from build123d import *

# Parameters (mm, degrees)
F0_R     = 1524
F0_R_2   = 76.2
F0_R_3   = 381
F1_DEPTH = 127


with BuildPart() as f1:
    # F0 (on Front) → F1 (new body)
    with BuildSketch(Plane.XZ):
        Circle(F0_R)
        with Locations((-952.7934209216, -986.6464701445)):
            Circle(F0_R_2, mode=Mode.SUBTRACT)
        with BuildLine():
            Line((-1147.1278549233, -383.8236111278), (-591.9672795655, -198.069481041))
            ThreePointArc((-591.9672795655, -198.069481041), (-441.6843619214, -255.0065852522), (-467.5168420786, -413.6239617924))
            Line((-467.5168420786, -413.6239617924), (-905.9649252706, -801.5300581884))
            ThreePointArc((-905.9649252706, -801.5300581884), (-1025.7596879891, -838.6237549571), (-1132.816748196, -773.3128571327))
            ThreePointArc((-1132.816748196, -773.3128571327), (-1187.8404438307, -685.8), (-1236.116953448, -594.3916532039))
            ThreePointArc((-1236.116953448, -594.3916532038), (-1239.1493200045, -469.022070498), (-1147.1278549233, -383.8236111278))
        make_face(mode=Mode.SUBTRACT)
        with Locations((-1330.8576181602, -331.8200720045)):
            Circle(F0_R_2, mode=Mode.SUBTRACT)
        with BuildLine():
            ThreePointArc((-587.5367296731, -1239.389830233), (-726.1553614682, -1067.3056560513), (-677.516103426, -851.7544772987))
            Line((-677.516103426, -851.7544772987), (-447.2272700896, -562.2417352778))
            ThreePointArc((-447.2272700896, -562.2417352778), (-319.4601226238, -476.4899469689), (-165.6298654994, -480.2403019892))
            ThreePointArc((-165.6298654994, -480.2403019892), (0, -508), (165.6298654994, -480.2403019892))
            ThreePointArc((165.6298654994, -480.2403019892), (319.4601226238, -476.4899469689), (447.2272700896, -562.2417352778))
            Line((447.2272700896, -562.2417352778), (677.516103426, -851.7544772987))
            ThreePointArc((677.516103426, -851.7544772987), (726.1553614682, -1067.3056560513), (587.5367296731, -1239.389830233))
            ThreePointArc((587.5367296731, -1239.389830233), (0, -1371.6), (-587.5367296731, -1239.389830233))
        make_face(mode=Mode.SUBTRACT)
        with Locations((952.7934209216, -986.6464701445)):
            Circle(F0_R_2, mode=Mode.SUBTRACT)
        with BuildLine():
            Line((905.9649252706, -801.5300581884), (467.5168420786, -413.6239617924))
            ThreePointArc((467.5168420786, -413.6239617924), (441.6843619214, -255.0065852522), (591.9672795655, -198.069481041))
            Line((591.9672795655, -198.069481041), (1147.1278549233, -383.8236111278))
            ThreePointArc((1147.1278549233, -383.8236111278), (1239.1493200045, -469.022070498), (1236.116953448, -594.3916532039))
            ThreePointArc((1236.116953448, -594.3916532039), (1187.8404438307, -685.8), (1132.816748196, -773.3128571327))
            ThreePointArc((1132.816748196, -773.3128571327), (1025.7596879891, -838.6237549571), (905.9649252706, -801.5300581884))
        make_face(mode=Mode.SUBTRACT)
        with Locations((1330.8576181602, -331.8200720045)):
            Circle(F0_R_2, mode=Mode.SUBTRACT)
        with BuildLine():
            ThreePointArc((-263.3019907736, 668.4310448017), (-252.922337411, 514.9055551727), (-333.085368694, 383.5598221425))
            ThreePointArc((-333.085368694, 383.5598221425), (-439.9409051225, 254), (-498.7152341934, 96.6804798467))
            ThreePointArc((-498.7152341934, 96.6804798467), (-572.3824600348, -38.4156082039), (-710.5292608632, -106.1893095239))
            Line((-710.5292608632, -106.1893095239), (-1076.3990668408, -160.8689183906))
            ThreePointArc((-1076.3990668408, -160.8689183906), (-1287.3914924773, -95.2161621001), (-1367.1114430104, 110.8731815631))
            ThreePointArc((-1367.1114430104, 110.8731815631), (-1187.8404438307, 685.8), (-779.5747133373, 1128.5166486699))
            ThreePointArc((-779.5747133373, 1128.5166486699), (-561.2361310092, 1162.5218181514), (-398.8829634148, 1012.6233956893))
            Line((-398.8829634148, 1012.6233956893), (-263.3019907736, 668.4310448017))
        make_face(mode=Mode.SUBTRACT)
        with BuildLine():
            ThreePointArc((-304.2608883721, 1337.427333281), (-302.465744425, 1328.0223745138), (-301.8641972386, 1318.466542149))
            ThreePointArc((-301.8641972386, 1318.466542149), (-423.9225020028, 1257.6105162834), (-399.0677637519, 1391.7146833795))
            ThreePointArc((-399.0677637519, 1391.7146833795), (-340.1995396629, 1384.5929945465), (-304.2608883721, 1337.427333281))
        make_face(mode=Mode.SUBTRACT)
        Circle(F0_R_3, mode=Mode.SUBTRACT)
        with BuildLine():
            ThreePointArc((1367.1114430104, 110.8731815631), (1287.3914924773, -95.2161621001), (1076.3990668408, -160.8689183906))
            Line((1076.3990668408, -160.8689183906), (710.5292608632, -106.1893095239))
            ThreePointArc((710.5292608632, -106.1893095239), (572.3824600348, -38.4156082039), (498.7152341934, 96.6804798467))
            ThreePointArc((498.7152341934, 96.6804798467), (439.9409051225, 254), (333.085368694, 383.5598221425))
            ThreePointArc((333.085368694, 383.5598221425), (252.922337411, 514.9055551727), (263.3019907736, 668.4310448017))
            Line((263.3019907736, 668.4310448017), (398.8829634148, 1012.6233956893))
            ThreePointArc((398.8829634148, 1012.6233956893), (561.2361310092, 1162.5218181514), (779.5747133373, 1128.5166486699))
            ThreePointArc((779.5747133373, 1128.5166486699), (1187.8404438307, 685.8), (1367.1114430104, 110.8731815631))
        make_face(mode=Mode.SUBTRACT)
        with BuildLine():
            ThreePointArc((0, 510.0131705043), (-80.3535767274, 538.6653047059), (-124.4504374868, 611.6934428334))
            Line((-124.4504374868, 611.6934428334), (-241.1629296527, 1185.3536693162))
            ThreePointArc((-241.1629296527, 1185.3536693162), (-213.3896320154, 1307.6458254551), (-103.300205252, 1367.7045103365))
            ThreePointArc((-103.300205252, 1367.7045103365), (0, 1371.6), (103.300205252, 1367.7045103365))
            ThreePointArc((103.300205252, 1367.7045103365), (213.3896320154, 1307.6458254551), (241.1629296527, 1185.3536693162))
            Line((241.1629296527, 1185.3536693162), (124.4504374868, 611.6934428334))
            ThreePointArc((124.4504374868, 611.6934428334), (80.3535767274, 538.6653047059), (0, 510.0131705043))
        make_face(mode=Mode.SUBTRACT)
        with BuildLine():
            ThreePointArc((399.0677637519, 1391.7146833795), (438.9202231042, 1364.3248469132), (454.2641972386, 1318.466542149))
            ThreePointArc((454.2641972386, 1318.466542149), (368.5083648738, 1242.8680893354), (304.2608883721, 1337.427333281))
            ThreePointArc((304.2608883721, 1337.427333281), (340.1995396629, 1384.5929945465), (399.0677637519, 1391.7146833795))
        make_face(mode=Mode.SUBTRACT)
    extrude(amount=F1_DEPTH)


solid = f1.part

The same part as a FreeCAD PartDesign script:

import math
import FreeCAD as App
import Part
import Sketcher
from FreeCAD import Vector
Q = App.Units.Quantity

doc = App.newDocument("Part")
body = doc.addObject("PartDesign::Body", "Body")

# Sketch on XZ plane
sketch1 = body.newObject("Sketcher::SketchObject", "Sketch")
sketch1.AttachmentSupport = (doc.getObject("XZ_Plane"), [""])
sketch1.MapMode = "FlatFace"
sketch1.addGeometry([
    Part.Circle(Vector(0, 0, 0), Vector(0, 0, 1), 1524),  # 0
    Part.Circle(Vector(-953, -987, 0), Vector(0, 0, 1), 76),  # 1
    Part.ArcOfCircle(Part.Circle(Vector(0, 0, 0), Vector(0, 0, 1), 1372), math.radians(-115), math.radians(-65)),  # 2
    Part.ArcOfCircle(Part.Circle(Vector(-479, -1010, 0), Vector(0, 0, 1), 254), math.radians(141), math.radians(245)),  # 3
    Part.LineSegment(Vector(-678, -852, 0), Vector(-447, -562, 0)),  # 4
    Part.ArcOfCircle(Part.Circle(Vector(-248, -720, 0), Vector(0, 0, 1), 254), math.radians(71), math.radians(142)),  # 5
    Part.ArcOfCircle(Part.Circle(Vector(0, 0, 0), Vector(0, 0, 1), 508), math.radians(-109), math.radians(-71)),  # 6
    Part.ArcOfCircle(Part.Circle(Vector(248, -720, 0), Vector(0, 0, 1), 254), math.radians(38), math.radians(109)),  # 7
    Part.LineSegment(Vector(447, -562, 0), Vector(678, -852, 0)),  # 8
    Part.ArcOfCircle(Part.Circle(Vector(479, -1010, 0), Vector(0, 0, 1), 254), math.radians(-65), math.radians(39)),  # 9
    Part.ArcOfCircle(Part.Circle(Vector(-1099, -528, 0), Vector(0, 0, 1), 152), math.radians(109), math.radians(206)),  # 10
    Part.LineSegment(Vector(-1147, -384, 0), Vector(-592, -198, 0)),  # 11
    Part.ArcOfCircle(Part.Circle(Vector(-552, -319, 0), Vector(0, 0, 1), 127), math.radians(-49), math.radians(109)),  # 12
    Part.LineSegment(Vector(-468, -414, 0), Vector(-906, -802, 0)),  # 13
    Part.ArcOfCircle(Part.Circle(Vector(-1007, -687, 0), Vector(0, 0, 1), 152), math.radians(-146), math.radians(-48)),  # 14
    Part.ArcOfCircle(Part.Circle(Vector(0, 0, 0), Vector(0, 0, 1), 1372), math.radians(-154.32), math.radians(-145.68)),  # 15
    Part.Circle(Vector(-1331, -332, 0), Vector(0, 0, 1), 76),  # 16
    Part.Circle(Vector(0, 0, 0), Vector(0, 0, 1), 381),  # 17
    Part.Circle(Vector(953, -987, 0), Vector(0, 0, 1), 76),  # 18
    Part.ArcOfCircle(Part.Circle(Vector(1007, -687, 0), Vector(0, 0, 1), 152), math.radians(-132), math.radians(-34)),  # 19
    Part.LineSegment(Vector(906, -802, 0), Vector(468, -414, 0)),  # 20
    Part.ArcOfCircle(Part.Circle(Vector(552, -319, 0), Vector(0, 0, 1), 127), math.radians(71), math.radians(229)),  # 21
    Part.LineSegment(Vector(592, -198, 0), Vector(1147, -384, 0)),  # 22
    Part.ArcOfCircle(Part.Circle(Vector(1099, -528, 0), Vector(0, 0, 1), 152), math.radians(-26), math.radians(71)),  # 23
    Part.ArcOfCircle(Part.Circle(Vector(0, 0, 0), Vector(0, 0, 1), 1372), math.radians(-34.32), math.radians(-25.68)),  # 24
    Part.Circle(Vector(1331, -332, 0), Vector(0, 0, 1), 76),  # 25
    Part.LineSegment(Vector(-399, 1013, 0), Vector(-263, 668, 0)),  # 26
    Part.ArcOfCircle(Part.Circle(Vector(-500, 575, 0), Vector(0, 0, 1), 254), math.radians(-49), math.radians(22)),  # 27
    Part.ArcOfCircle(Part.Circle(Vector(0, 0, 0), Vector(0, 0, 1), 508), math.radians(131), math.radians(169)),  # 28
    Part.ArcOfCircle(Part.Circle(Vector(-748, 145, 0), Vector(0, 0, 1), 254), math.radians(-81), math.radians(-11)),  # 29
    Part.LineSegment(Vector(-711, -106, 0), Vector(-1076, -161, 0)),  # 30
    Part.ArcOfCircle(Part.Circle(Vector(-1114, 90, 0), Vector(0, 0, 1), 254), math.radians(175), math.radians(279)),  # 31
    Part.ArcOfCircle(Part.Circle(Vector(0, 0, 0), Vector(0, 0, 1), 1372), math.radians(125), math.radians(175)),  # 32
    Part.ArcOfCircle(Part.Circle(Vector(-635, 920, 0), Vector(0, 0, 1), 254), math.radians(22), math.radians(125)),  # 33
    Part.ArcOfCircle(Part.Circle(Vector(0, 637, 0), Vector(0, 0, 1), 127), math.radians(-90), math.radians(-11)),  # 34
    Part.ArcOfCircle(Part.Circle(Vector(0, 637, 0), Vector(0, 0, 1), 127), math.radians(-169), math.radians(-90)),  # 35
    Part.LineSegment(Vector(-124, 612, 0), Vector(-241, 1185, 0)),  # 36
    Part.ArcOfCircle(Part.Circle(Vector(-92, 1216, 0), Vector(0, 0, 1), 152), math.radians(94), math.radians(191)),  # 37
    Part.ArcOfCircle(Part.Circle(Vector(0, 0, 0), Vector(0, 0, 1), 1372), math.radians(85.68), math.radians(94.32)),  # 38
    Part.ArcOfCircle(Part.Circle(Vector(92, 1216, 0), Vector(0, 0, 1), 152), math.radians(-11), math.radians(86)),  # 39
    Part.LineSegment(Vector(241, 1185, 0), Vector(124, 612, 0)),  # 40
    Part.ArcOfCircle(Part.Circle(Vector(-378, 1318, 0), Vector(0, 0, 1), 76), math.radians(14), math.radians(360)),  # 41
    Part.ArcOfCircle(Part.Circle(Vector(-378, 1318, 0), Vector(0, 0, 1), 76), math.radians(0), math.radians(14.41)),  # 42
    Part.ArcOfCircle(Part.Circle(Vector(0, 0, 0), Vector(0, 0, 1), 1372), math.radians(5), math.radians(55)),  # 43
    Part.ArcOfCircle(Part.Circle(Vector(1114, 90, 0), Vector(0, 0, 1), 254), math.radians(-99), math.radians(5)),  # 44
    Part.LineSegment(Vector(1076, -161, 0), Vector(711, -106, 0)),  # 45
    Part.ArcOfCircle(Part.Circle(Vector(748, 145, 0), Vector(0, 0, 1), 254), math.radians(-169), math.radians(-99)),  # 46
    Part.ArcOfCircle(Part.Circle(Vector(0, 0, 0), Vector(0, 0, 1), 508), math.radians(11), math.radians(49)),  # 47
    Part.ArcOfCircle(Part.Circle(Vector(500, 575, 0), Vector(0, 0, 1), 254), math.radians(158), math.radians(229)),  # 48
    Part.LineSegment(Vector(263, 668, 0), Vector(399, 1013, 0)),  # 49
    Part.ArcOfCircle(Part.Circle(Vector(635, 920, 0), Vector(0, 0, 1), 254), math.radians(55), math.radians(158)),  # 50
    Part.Circle(Vector(378, 1318, 0), Vector(0, 0, 1), 76),  # 51
], False)
sketch1.addConstraint([
    Sketcher.Constraint("Tangent", 2, 1, 3, 2),
    Sketcher.Constraint("Tangent", 3, 1, 4, 1),
    Sketcher.Constraint("Tangent", 4, 2, 5, 2),
    Sketcher.Constraint("Tangent", 5, 1, 6, 1),
    Sketcher.Constraint("Tangent", 6, 2, 7, 2),
    Sketcher.Constraint("Tangent", 7, 1, 8, 1),
    Sketcher.Constraint("Tangent", 8, 2, 9, 2),
    Sketcher.Constraint("Tangent", 9, 1, 2, 2),
    Sketcher.Constraint("Tangent", 10, 1, 11, 1),
    Sketcher.Constraint("Tangent", 11, 2, 12, 2),
    Sketcher.Constraint("Tangent", 12, 1, 13, 1),
    Sketcher.Constraint("Tangent", 13, 2, 14, 2),
    Sketcher.Constraint("Tangent", 14, 1, 15, 2),
    Sketcher.Constraint("Tangent", 15, 1, 10, 2),
    Sketcher.Constraint("Tangent", 19, 1, 20, 1),
    Sketcher.Constraint("Tangent", 20, 2, 21, 2),
    Sketcher.Constraint("Tangent", 21, 1, 22, 1),
    Sketcher.Constraint("Tangent", 22, 2, 23, 2),
    Sketcher.Constraint("Tangent", 23, 1, 24, 2),
    Sketcher.Constraint("Tangent", 24, 1, 19, 2),
    Sketcher.Constraint("Tangent", 26, 2, 27, 2),
    Sketcher.Constraint("Tangent", 27, 1, 28, 1),
    Sketcher.Constraint("Tangent", 28, 2, 29, 2),
    Sketcher.Constraint("Tangent", 29, 1, 30, 1),
    Sketcher.Constraint("Tangent", 30, 2, 31, 2),
    Sketcher.Constraint("Tangent", 31, 1, 32, 2),
    Sketcher.Constraint("Tangent", 32, 1, 33, 2),
    Sketcher.Constraint("Tangent", 33, 1, 26, 1),
    Sketcher.Constraint("Tangent", 34, 1, 35, 2),
    Sketcher.Constraint("Tangent", 35, 1, 36, 1),
    Sketcher.Constraint("Tangent", 36, 2, 37, 2),
    Sketcher.Constraint("Tangent", 37, 1, 38, 2),
    Sketcher.Constraint("Tangent", 38, 1, 39, 2),
    Sketcher.Constraint("Tangent", 39, 1, 40, 1),
    Sketcher.Constraint("Tangent", 40, 2, 34, 2),
    Sketcher.Constraint("Tangent", 41, 1, 42, 2),
    Sketcher.Constraint("Coincident", 42, 1, 41, 2),
    Sketcher.Constraint("Tangent", 43, 1, 44, 2),
    Sketcher.Constraint("Tangent", 44, 1, 45, 1),
    Sketcher.Constraint("Tangent", 45, 2, 46, 2),
    Sketcher.Constraint("Tangent", 46, 1, 47, 1),
    Sketcher.Constraint("Tangent", 47, 2, 48, 2),
    Sketcher.Constraint("Tangent", 48, 1, 49, 1),
    Sketcher.Constraint("Tangent", 49, 2, 50, 2),
    Sketcher.Constraint("Tangent", 50, 1, 43, 2),
    Sketcher.Constraint("Coincident", 0, 3, -1, 1),
    Sketcher.Constraint("Coincident", 2, 3, -1, 1),
    Sketcher.Constraint("Coincident", 6, 3, -1, 1),
    Sketcher.Constraint("Coincident", 15, 3, -1, 1),
    Sketcher.Constraint("Coincident", 17, 3, -1, 1),
    Sketcher.Constraint("Coincident", 24, 3, -1, 1),
    Sketcher.Constraint("Coincident", 28, 3, -1, 1),
    Sketcher.Constraint("Coincident", 32, 3, -1, 1),
    Sketcher.Constraint("Coincident", 38, 3, -1, 1),
    Sketcher.Constraint("Coincident", 43, 3, -1, 1),
    Sketcher.Constraint("Coincident", 47, 3, -1, 1),
    Sketcher.Constraint("Equal", 3, 5),
    Sketcher.Constraint("Equal", 5, 7),
    Sketcher.Constraint("Equal", 7, 9),
    Sketcher.Constraint("Equal", 10, 14),
    Sketcher.Constraint("Equal", 2, 15),
    Sketcher.Constraint("Equal", 1, 16),
    Sketcher.Constraint("Equal", 16, 18),
    Sketcher.Constraint("Equal", 14, 19),
    Sketcher.Constraint("Equal", 12, 21),
    Sketcher.Constraint("Equal", 19, 23),
    Sketcher.Constraint("Equal", 15, 24),
    Sketcher.Constraint("Equal", 18, 25),
    Sketcher.Constraint("Equal", 9, 27),
    Sketcher.Constraint("Equal", 6, 28),
    Sketcher.Constraint("Equal", 27, 29),
    Sketcher.Constraint("Equal", 29, 31),
    Sketcher.Constraint("Equal", 24, 32),
    Sketcher.Constraint("Equal", 31, 33),
    Sketcher.Constraint("Equal", 21, 34),
    Sketcher.Constraint("Equal", 34, 35),
    Sketcher.Constraint("Equal", 23, 37),
    Sketcher.Constraint("Equal", 32, 38),
    Sketcher.Constraint("Equal", 37, 39),
    Sketcher.Constraint("Equal", 25, 41),
    Sketcher.Constraint("Equal", 38, 43),
    Sketcher.Constraint("Equal", 33, 44),
    Sketcher.Constraint("Equal", 44, 46),
    Sketcher.Constraint("Equal", 28, 47),
    Sketcher.Constraint("Equal", 46, 48),
    Sketcher.Constraint("Equal", 48, 50),
    Sketcher.Constraint("Equal", 42, 51),
    Sketcher.Constraint("Symmetric", 1, 3, 18, 3, -2),
    Sketcher.Constraint("Symmetric", 12, 3, 21, 3, -2),
    Sketcher.Constraint("Symmetric", 16, 3, 25, 3, -2),
    Sketcher.Constraint("Symmetric", 41, 3, 51, 3, -2),
    Sketcher.Constraint("Symmetric", 4, 2, 7, 1, -2),
    Sketcher.Constraint("Symmetric", 30, 2, 44, 1, -2),
    Sketcher.Constraint("Symmetric", 26, 2, 48, 1, -2),
    Sketcher.Constraint("PointOnObject", 34, 3, -2),
    Sketcher.Constraint("PointOnObject", 34, 1, -2),
    Sketcher.Constraint("Horizontal", 14, 3, 19, 3),
    Sketcher.Constraint("Horizontal", 10, 3, 23, 3),
    Sketcher.Constraint("Horizontal", 37, 3, 39, 3),
    Sketcher.Constraint("Horizontal", 51, 3, 42, 1),
    Sketcher.Constraint("Equal", 11, 13),
    Sketcher.Constraint("Equal", 8, 26),
    Sketcher.Constraint("Equal", 26, 30),
    Sketcher.Constraint("Equal", 22, 36),
    Sketcher.Constraint("Diameter", 0, Q("120 in")),
    Sketcher.Constraint("Diameter", 1, Q("6 in")),
    Sketcher.Constraint("Diameter", 17, Q("30 in")),
    Sketcher.Constraint("Radius", 2, Q("54 in")),
    Sketcher.Constraint("Radius", 3, Q("10 in")),
    Sketcher.Constraint("Radius", 6, Q("20 in")),
    Sketcher.Constraint("Radius", 10, Q("6 in")),
    Sketcher.Constraint("Radius", 12, Q("5 in")),
    Sketcher.Constraint("Angle", 4, Q("51.5 deg")),
    Sketcher.Constraint("Angle", 11, Q("18.5 deg")),
    Sketcher.Constraint("Angle", 13, Q("-138.5 deg")),
    Sketcher.Constraint("Angle", 26, Q("-68.5 deg")),
    Sketcher.Constraint("Angle", 30, Q("-171.5 deg")),
    Sketcher.Constraint("Angle", 36, Q("101.5 deg")),
    Sketcher.Constraint("DistanceX", 5, 3, -1, 1, 248.444798),
    Sketcher.Constraint("DistanceX", 1, 3, -1, 1, 952.793421),
    Sketcher.Constraint("DistanceY", 1, 3, -1, 1, 986.64647),
    Sketcher.Constraint("DistanceX", 12, 3, -1, 1, 551.669588),
    Sketcher.Constraint("DistanceX", 16, 3, -1, 1, 1330.857618),
    Sketcher.Constraint("DistanceX", 41, 1, -1, 1, 304.260888),
    Sketcher.Constraint("DistanceY", 16, 3, -1, 1, 331.820072),
    Sketcher.Constraint("DistanceX", 41, 3, -1, 1, 378.064197),
    Sketcher.Constraint("DistanceY", -1, 1, 41, 3, 1318.466542),
])
pad1 = body.newObject("PartDesign::Pad", "Pad")
pad1.Profile = sketch1
pad1.Length = Q("5 in")

doc.recompute()
